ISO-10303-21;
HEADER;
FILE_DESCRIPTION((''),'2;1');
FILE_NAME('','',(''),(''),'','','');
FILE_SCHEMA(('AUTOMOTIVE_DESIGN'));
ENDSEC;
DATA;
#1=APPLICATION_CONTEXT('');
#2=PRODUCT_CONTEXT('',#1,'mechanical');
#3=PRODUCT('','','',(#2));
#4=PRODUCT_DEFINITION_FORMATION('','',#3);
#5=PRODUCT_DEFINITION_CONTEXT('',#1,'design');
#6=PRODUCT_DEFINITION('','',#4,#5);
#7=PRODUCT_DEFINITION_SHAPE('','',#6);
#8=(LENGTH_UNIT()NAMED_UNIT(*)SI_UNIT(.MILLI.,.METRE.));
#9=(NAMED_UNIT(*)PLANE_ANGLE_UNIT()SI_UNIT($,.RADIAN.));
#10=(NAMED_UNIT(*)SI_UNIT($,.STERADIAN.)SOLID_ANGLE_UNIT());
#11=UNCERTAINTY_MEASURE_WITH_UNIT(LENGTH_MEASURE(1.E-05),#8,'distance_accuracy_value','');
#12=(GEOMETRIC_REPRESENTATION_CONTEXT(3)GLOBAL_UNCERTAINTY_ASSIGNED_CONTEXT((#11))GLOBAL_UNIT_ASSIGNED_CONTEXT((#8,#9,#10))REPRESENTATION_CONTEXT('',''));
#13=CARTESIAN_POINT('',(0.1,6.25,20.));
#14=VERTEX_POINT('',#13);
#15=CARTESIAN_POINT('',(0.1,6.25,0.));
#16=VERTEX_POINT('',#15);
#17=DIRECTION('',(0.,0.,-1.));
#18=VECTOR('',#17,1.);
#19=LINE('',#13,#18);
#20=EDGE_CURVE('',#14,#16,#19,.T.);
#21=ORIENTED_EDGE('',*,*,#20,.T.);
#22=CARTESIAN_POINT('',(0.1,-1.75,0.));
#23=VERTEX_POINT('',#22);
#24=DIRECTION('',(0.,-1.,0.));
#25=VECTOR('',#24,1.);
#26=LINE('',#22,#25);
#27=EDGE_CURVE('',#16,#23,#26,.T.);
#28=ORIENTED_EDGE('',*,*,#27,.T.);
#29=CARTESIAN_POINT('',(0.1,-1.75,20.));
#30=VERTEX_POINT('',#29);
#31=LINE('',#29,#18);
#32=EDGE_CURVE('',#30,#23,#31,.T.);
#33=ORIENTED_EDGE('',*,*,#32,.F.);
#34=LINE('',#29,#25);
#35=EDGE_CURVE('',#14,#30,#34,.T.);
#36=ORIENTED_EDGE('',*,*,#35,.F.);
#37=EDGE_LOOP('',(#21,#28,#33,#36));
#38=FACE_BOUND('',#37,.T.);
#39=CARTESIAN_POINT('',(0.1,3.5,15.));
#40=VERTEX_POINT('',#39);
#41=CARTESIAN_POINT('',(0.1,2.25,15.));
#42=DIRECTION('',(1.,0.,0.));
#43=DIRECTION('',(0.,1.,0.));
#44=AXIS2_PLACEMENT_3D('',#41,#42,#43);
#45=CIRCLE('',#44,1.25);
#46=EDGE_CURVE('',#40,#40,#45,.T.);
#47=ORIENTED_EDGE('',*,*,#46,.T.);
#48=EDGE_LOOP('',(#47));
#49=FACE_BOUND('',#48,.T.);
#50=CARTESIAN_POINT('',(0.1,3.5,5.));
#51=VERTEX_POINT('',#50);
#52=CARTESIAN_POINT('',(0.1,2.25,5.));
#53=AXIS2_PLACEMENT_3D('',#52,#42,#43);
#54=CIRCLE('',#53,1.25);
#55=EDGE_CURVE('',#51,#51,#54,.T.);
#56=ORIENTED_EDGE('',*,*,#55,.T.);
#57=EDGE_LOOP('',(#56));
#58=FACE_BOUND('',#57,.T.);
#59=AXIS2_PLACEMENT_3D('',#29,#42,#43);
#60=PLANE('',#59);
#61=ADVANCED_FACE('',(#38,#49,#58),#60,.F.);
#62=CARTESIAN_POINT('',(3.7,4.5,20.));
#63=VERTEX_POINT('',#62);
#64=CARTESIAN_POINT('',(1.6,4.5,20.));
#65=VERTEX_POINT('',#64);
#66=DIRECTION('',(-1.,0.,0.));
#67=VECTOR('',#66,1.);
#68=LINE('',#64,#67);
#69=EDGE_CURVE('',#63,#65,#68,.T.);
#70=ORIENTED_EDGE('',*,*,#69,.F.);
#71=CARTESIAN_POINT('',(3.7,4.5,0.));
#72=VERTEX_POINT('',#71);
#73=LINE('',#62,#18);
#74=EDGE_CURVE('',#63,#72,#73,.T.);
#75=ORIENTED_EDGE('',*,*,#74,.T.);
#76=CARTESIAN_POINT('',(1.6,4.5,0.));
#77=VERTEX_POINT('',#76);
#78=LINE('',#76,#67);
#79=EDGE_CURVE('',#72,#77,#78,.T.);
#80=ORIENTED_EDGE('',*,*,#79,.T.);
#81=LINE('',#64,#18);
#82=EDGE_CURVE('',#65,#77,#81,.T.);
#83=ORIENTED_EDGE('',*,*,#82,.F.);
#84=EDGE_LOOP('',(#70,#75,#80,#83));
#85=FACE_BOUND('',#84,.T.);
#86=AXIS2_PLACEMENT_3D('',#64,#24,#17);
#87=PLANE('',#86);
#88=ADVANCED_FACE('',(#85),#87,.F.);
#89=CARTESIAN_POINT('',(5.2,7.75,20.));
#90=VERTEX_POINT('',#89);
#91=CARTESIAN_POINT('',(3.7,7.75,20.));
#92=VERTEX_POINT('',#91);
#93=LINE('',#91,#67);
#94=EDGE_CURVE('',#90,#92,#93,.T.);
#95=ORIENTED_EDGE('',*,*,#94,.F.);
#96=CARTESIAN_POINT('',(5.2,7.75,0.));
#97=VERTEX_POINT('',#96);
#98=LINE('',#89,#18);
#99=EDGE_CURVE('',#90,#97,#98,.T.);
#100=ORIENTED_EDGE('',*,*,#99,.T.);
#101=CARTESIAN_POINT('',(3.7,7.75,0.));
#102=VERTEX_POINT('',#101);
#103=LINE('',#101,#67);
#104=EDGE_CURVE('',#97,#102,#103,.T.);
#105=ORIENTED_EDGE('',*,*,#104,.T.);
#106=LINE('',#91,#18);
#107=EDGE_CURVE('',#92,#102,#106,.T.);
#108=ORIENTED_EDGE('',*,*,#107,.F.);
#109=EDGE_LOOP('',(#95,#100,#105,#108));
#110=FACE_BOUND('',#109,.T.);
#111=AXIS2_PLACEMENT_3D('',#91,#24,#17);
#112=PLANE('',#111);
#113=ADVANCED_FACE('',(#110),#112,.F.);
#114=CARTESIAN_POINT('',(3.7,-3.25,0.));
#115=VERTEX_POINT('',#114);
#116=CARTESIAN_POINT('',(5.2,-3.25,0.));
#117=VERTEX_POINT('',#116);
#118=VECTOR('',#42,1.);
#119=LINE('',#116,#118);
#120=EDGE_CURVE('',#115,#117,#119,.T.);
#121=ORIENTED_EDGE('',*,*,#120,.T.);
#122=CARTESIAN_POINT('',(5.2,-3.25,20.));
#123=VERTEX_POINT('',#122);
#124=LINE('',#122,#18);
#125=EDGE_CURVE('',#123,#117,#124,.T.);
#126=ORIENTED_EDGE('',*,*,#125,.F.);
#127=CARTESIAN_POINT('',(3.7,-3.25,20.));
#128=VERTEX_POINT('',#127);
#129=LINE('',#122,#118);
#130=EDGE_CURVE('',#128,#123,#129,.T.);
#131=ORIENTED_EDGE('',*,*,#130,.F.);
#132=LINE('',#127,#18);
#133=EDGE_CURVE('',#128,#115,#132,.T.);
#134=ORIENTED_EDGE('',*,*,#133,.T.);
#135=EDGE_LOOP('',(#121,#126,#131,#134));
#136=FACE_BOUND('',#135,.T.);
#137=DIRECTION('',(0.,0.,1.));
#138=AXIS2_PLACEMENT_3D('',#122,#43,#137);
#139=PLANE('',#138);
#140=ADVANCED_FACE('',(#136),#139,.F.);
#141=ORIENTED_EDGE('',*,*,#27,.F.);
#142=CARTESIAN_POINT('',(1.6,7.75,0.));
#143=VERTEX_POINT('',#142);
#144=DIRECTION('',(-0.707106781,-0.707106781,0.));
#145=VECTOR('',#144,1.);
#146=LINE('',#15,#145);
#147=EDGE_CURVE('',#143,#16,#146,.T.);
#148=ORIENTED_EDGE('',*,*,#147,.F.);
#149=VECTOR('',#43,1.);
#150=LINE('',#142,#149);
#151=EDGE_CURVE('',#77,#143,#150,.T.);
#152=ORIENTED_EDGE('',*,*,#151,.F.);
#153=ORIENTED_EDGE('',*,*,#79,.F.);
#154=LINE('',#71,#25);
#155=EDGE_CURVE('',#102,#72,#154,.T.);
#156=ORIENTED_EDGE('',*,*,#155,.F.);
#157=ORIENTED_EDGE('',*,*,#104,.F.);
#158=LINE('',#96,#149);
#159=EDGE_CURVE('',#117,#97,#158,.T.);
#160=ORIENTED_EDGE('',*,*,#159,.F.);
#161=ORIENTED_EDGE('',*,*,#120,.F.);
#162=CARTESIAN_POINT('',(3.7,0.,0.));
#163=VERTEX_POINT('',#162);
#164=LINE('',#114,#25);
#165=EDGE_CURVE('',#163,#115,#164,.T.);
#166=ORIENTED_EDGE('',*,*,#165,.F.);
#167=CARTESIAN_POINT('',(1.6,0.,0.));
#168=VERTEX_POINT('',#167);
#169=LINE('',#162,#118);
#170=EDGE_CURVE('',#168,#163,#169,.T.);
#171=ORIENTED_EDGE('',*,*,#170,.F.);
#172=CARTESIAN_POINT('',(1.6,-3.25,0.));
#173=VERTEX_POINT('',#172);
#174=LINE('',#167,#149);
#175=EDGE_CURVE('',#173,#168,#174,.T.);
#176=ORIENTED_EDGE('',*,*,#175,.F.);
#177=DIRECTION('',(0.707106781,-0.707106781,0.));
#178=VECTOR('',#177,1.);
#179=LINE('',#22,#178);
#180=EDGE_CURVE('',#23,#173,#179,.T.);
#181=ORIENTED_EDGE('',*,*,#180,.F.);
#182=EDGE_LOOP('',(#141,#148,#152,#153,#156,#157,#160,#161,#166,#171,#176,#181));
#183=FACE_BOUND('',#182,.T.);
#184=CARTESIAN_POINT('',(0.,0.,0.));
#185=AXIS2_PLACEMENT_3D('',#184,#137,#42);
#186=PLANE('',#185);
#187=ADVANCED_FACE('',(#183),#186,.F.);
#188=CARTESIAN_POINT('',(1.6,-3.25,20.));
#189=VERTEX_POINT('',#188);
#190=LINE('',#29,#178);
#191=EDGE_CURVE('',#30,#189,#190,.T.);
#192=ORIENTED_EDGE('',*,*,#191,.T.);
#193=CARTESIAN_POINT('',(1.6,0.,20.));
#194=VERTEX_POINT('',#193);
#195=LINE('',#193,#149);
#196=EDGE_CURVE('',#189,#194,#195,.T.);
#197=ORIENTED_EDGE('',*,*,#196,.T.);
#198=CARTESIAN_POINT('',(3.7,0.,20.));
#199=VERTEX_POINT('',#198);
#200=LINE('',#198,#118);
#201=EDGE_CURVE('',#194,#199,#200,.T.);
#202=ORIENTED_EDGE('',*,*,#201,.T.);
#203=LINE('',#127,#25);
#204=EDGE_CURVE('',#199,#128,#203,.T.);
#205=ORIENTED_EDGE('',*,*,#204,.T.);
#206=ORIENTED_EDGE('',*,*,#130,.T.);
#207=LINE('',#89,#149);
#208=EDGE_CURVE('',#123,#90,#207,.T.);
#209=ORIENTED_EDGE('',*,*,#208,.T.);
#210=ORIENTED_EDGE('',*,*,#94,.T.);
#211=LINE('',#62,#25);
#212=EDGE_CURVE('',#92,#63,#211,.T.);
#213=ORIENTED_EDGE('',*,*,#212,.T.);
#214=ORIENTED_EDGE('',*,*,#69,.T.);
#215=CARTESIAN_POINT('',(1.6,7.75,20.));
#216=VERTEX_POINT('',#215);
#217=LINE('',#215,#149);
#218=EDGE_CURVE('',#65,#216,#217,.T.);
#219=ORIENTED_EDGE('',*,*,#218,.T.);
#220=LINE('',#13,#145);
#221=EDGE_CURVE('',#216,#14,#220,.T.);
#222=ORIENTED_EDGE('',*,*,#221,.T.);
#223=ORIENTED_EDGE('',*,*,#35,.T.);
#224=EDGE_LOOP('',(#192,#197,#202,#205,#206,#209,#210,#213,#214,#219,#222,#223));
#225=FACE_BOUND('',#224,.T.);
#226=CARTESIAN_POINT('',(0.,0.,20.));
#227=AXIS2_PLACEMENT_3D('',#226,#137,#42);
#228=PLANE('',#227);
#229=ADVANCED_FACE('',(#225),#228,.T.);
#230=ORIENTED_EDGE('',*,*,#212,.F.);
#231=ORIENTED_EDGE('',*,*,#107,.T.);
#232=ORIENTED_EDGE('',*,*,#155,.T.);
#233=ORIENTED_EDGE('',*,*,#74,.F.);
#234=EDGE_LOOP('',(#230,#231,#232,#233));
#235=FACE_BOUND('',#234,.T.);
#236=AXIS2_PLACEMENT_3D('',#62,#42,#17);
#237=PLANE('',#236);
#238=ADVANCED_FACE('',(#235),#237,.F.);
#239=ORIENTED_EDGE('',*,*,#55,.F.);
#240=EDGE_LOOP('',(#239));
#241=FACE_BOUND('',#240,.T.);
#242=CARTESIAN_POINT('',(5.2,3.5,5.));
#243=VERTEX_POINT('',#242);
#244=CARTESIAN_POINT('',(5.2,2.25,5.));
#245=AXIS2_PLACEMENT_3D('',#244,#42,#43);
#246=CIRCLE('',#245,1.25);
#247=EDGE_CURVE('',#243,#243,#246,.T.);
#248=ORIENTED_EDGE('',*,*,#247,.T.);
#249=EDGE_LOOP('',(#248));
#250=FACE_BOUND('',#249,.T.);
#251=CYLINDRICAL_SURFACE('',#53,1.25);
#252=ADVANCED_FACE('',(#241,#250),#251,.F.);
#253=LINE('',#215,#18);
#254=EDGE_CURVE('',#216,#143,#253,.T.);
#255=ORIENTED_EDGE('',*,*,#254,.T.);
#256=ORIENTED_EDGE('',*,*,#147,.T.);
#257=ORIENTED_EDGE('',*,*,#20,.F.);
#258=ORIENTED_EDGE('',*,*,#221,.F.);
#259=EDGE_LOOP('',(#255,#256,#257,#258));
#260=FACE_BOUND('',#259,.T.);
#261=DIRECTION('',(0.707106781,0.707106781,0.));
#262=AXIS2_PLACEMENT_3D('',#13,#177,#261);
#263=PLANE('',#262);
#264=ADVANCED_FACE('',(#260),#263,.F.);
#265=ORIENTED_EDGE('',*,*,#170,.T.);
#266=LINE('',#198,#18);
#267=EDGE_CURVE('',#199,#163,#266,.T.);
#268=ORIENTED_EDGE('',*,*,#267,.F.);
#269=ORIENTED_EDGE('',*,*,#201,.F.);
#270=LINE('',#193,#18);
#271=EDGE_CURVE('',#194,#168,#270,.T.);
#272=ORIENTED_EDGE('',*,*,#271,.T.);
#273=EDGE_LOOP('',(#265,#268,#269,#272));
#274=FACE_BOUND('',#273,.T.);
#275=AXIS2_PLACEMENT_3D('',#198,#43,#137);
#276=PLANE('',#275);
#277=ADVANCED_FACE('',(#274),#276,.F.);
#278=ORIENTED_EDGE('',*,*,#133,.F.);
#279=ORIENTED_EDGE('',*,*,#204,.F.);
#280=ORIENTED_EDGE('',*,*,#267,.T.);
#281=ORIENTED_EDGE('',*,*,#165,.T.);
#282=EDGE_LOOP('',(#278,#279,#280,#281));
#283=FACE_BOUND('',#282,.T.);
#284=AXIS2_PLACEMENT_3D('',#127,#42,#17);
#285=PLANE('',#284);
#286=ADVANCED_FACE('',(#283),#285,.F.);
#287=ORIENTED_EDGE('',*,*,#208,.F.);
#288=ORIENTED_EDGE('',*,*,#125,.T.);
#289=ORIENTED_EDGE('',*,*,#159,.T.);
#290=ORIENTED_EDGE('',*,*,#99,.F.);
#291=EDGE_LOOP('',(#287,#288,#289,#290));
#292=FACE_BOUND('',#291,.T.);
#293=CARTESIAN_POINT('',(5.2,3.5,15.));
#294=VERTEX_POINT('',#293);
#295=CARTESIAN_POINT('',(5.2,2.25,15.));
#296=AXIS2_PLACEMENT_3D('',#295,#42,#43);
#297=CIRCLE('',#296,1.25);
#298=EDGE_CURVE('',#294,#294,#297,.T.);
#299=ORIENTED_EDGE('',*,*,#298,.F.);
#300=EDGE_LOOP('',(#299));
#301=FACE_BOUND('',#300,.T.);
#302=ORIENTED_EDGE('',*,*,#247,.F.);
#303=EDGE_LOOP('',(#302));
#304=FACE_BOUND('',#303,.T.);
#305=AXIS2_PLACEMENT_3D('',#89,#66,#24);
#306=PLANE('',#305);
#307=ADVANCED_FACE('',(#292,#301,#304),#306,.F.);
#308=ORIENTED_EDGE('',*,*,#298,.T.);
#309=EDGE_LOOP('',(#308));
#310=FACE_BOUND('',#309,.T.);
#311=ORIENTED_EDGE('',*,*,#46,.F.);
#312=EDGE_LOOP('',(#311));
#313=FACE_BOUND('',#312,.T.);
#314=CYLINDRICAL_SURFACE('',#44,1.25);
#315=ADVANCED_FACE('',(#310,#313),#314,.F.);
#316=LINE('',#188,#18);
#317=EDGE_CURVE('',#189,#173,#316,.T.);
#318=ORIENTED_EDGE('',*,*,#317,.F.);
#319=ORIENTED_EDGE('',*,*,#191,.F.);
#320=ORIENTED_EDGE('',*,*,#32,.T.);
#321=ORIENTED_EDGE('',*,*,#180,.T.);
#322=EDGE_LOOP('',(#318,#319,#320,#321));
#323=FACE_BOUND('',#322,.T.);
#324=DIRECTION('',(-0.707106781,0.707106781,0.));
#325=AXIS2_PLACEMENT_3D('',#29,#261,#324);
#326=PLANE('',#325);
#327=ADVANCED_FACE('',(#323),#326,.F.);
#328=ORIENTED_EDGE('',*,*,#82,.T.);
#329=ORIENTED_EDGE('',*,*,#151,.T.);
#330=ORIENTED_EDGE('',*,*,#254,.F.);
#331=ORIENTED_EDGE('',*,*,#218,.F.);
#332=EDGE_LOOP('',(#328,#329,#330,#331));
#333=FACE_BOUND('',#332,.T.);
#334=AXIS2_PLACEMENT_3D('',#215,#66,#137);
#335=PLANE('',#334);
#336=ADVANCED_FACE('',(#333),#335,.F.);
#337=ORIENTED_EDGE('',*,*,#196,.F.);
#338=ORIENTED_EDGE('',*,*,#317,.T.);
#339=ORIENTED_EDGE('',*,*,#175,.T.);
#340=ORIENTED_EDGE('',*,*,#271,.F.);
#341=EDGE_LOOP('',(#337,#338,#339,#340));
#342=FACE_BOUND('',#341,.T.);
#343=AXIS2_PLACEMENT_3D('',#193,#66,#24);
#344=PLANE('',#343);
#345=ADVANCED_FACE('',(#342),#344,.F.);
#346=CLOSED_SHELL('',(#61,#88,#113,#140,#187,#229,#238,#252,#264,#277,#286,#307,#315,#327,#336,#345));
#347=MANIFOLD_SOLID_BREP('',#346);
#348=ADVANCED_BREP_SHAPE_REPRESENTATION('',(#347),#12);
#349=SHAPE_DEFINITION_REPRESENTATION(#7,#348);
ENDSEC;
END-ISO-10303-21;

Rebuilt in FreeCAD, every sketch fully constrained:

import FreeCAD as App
import Part
import Sketcher


def add_polygon(sketch, points):
    """Adds a closed chain of lines whose ends are joined by coincident constraints."""
    first, n = sketch.GeometryCount, len(points)
    for a, b in zip(points, points[1:] + points[:1]):
        sketch.addGeometry(Part.LineSegment(App.Vector(*a, 0), App.Vector(*b, 0)), False)
    for i in range(n):
        sketch.addConstraint(Sketcher.Constraint("Coincident", first + i, 2, first + (i + 1) % n, 1))

doc = App.newDocument("Part")
body = doc.addObject("PartDesign::Body", "Body")

sketch1 = body.newObject("Sketcher::SketchObject", "Sketch")
sketch1.AttachmentSupport = (doc.getObject("XY_Plane"), [""])
sketch1.MapMode = "FlatFace"
add_polygon(sketch1, [(0.1, 6.2), (0.1, -1.8), (1.6, -3.2), (1.6, 0), (3.7, 0), (3.7, -3.2), (5.2, -3.2), (5.2, 7.8), (3.7, 7.8), (3.7, 4.5), (1.6, 4.5), (1.6, 7.8)])
sketch1.addConstraint([
    Sketcher.Constraint("Vertical", 0),
    Sketcher.Constraint("Vertical", 2),
    Sketcher.Constraint("Horizontal", 3),
    Sketcher.Constraint("Vertical", 4),
    Sketcher.Constraint("Horizontal", 5),
    Sketcher.Constraint("Vertical", 6),
    Sketcher.Constraint("Horizontal", 7),
    Sketcher.Constraint("Vertical", 8),
    Sketcher.Constraint("Horizontal", 9),
    Sketcher.Constraint("Vertical", 10),
    Sketcher.Constraint("PointOnObject", 2, 2, -1),
    Sketcher.Constraint("Perpendicular", 1, 11),
    Sketcher.Constraint("Horizontal", 1, 2, 4, 2),
    Sketcher.Constraint("Horizontal", 7, 2, 10, 2),
    Sketcher.Constraint("Vertical", 4, 2, 7, 2),
    Sketcher.Constraint("Vertical", 2, 2, 9, 2),
    Sketcher.Constraint("Equal", 4, 8),
    Sketcher.Constraint("Equal", 1, 11),
    Sketcher.Constraint("DistanceY", 0, 2, 0, 1, 8.0),
    Sketcher.Constraint("DistanceY", 6, 1, 6, 2, 11.0),
    Sketcher.Constraint("DistanceX", 3, 1, 3, 2, 2.1),
    Sketcher.Constraint("DistanceX", 5, 1, 5, 2, 1.5),
    Sketcher.Constraint("DistanceY", 2, 1, 2, 2, 3.25),
    Sketcher.Constraint("DistanceX", -1, 1, 0, 2, 0.1),
])
pad1 = body.newObject("PartDesign::Pad", "Pad")
pad1.Profile = sketch1
pad1.Length = 20

sketch2 = body.newObject("Sketcher::SketchObject", "Sketch001")
sketch2.AttachmentSupport = (doc.getObject("YZ_Plane"), [""])
sketch2.MapMode = "FlatFace"
sketch2.AttachmentOffset = App.Placement(App.Vector(0, 0, 5.2), App.Rotation())
sketch2.addGeometry([
    Part.Circle(App.Vector(2.2, 15, 0), App.Vector(0, 0, 1), 1.2),
    Part.Circle(App.Vector(2.2, 5, 0), App.Vector(0, 0, 1), 1.2),
], False)
sketch2.addConstraint([
    Sketcher.Constraint("Equal", 0, 1),
    Sketcher.Constraint("Vertical", 0, 3, 1, 3),
    Sketcher.Constraint("Diameter", 0, 2.5),
    Sketcher.Constraint("DistanceY", -1, 1, 0, 3, 15.0),
    Sketcher.Constraint("DistanceY", -1, 1, 1, 3, 5.0),
    Sketcher.Constraint("DistanceX", -1, 1, 0, 3, 2.25),
])
pocket1 = body.newObject("PartDesign::Pocket", "Pocket")
pocket1.Profile = sketch2
pocket1.Type = "ThroughAll"

doc.recompute()
